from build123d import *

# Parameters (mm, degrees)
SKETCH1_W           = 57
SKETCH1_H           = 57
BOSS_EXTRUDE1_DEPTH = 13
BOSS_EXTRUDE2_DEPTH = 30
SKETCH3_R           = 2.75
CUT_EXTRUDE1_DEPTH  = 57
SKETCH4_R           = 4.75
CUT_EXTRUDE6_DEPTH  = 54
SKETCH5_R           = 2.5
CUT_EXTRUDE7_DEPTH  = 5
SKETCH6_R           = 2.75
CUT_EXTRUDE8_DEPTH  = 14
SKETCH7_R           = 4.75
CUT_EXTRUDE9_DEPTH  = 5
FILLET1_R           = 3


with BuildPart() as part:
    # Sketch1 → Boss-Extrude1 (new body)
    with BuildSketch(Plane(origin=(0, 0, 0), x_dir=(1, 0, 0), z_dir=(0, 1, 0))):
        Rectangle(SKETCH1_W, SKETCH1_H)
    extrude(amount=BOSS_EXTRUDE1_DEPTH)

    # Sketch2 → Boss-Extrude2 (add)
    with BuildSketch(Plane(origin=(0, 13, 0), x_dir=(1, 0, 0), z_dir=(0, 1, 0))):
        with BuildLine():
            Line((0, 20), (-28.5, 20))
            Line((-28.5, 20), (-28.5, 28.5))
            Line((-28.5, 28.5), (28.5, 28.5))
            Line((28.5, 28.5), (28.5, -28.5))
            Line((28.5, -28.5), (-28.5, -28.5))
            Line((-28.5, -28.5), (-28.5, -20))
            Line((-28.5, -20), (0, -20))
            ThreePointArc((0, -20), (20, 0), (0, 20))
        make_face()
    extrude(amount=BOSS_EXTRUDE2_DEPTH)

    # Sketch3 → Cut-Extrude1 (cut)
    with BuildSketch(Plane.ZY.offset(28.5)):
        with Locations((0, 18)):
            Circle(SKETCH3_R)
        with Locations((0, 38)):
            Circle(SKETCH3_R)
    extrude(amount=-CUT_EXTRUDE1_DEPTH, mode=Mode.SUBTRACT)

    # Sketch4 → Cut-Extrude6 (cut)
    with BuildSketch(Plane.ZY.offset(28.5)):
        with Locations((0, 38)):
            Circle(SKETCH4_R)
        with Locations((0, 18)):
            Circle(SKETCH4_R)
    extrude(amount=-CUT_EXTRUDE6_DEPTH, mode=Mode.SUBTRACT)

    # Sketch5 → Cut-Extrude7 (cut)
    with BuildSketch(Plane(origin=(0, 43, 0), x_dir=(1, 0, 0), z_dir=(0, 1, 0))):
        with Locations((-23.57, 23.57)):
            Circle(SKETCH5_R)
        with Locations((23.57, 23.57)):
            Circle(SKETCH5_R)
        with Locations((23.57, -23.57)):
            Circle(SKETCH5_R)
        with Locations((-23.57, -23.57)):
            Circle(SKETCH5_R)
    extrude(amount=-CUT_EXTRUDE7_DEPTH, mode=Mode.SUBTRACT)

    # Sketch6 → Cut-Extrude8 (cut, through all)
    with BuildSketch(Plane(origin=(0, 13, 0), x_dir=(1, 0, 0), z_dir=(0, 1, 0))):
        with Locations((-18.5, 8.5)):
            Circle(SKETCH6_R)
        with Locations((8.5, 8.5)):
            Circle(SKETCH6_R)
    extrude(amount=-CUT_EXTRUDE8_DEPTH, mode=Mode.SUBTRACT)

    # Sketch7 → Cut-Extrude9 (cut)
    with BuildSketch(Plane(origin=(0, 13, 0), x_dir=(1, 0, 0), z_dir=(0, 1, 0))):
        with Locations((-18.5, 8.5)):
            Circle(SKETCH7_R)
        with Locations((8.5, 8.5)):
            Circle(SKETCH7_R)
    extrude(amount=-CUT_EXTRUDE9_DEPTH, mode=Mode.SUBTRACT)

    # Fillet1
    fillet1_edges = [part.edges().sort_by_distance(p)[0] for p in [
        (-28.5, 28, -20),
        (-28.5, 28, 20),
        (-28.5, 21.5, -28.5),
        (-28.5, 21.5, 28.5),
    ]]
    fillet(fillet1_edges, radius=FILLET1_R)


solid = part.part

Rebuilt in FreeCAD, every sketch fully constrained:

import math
import FreeCAD as App
import Part
import Sketcher
from FreeCAD import Vector


def edges_at(feature, points):
    """Names of the edges that pass closest to the given points."""
    edges = feature.Shape.Edges
    near = lambda p: min(range(len(edges)), key=lambda i: edges[i].distToShape(Part.Vertex(*p))[0])
    return sorted({f"Edge{near(p) + 1}" for p in points})


def add_polygon(sketch, points):
    """Adds a closed chain of lines whose ends are joined by coincident constraints."""
    first, n = sketch.GeometryCount, len(points)
    for a, b in zip(points, points[1:] + points[:1]):
        sketch.addGeometry(Part.LineSegment(App.Vector(*a, 0), App.Vector(*b, 0)), False)
    for i in range(n):
        sketch.addConstraint(Sketcher.Constraint("Coincident", first + i, 2, first + (i + 1) % n, 1))

doc = App.newDocument("Part")
body = doc.addObject("PartDesign::Body", "Body")

# Sketch on XZ plane
sketch1 = body.newObject("Sketcher::SketchObject", "Sketch")
sketch1.AttachmentSupport = (doc.getObject("XZ_Plane"), [""])
sketch1.MapMode = "FlatFace"
add_polygon(sketch1, [(-28, -28), (-28, 28), (28, 28), (28, -28)])  # lines 0-3
sketch1.addConstraint([
    Sketcher.Constraint("Vertical", 0),
    Sketcher.Constraint("Horizontal", 1),
    Sketcher.Constraint("Vertical", 2),
    Sketcher.Constraint("Horizontal", 3),
    Sketcher.Constraint("Symmetric", 0, 2, 2, 2, -1, 1),
    Sketcher.Constraint("Equal", 3, 0),
    Sketcher.Constraint("DistanceX", 1, 1, 1, 2, 57.0),
])
pad1 = body.newObject("PartDesign::Pad", "Pad")
pad1.Profile = sketch1
pad1.Length = 13
pad1.Reversed = True

# Sketch on XZ plane
sketch2 = body.newObject("Sketcher::SketchObject", "Sketch001")
sketch2.AttachmentSupport = (doc.getObject("XZ_Plane"), [""])
sketch2.MapMode = "FlatFace"
sketch2.AttachmentOffset = App.Placement(Vector(0, 0, -13), App.Rotation())
sketch2.addGeometry([
    Part.LineSegment(Vector(-28, -20, 0), Vector(0, -20, 0)),  # 0
    Part.ArcOfCircle(Part.Circle(Vector(0, 0, 0), Vector(0, 0, 1), 20), math.radians(-90), math.radians(90)),  # 1
    Part.LineSegment(Vector(0, 20, 0), Vector(-28, 20, 0)),  # 2
    Part.LineSegment(Vector(-28, 20, 0), Vector(-28, 28, 0)),  # 3
    Part.LineSegment(Vector(-28, 28, 0), Vector(28, 28, 0)),  # 4
    Part.LineSegment(Vector(28, 28, 0), Vector(28, -28, 0)),  # 5
    Part.LineSegment(Vector(28, -28, 0), Vector(-28, -28, 0)),  # 6
    Part.LineSegment(Vector(-28, -28, 0), Vector(-28, -20, 0)),  # 7
], False)
sketch2.addConstraint([
    Sketcher.Constraint("Tangent", 0, 2, 1, 1),
    Sketcher.Constraint("Tangent", 1, 2, 2, 1),
    Sketcher.Constraint("Coincident", 2, 2, 3, 1),
    Sketcher.Constraint("Coincident", 3, 2, 4, 1),
    Sketcher.Constraint("Coincident", 4, 2, 5, 1),
    Sketcher.Constraint("Coincident", 5, 2, 6, 1),
    Sketcher.Constraint("Coincident", 6, 2, 7, 1),
    Sketcher.Constraint("Coincident", 7, 2, 0, 1),
    Sketcher.Constraint("Horizontal", 0),
    Sketcher.Constraint("Horizontal", 2),
    Sketcher.Constraint("Vertical", 3),
    Sketcher.Constraint("Horizontal", 4),
    Sketcher.Constraint("Vertical", 5),
    Sketcher.Constraint("Horizontal", 6),
    Sketcher.Constraint("Vertical", 7),
    Sketcher.Constraint("Coincident", 1, 3, -1, 1),
    Sketcher.Constraint("Symmetric", 3, 2, 5, 2, -1, 1),
    Sketcher.Constraint("Vertical", 3, 2, 6, 2),
    Sketcher.Constraint("Equal", 6, 5),
    Sketcher.Constraint("Radius", 1, 20.0),
    Sketcher.Constraint("DistanceX", 4, 1, 4, 2, 57.0),
])
pad2 = body.newObject("PartDesign::Pad", "Pad001")
pad2.Profile = sketch2
pad2.Length = 30
pad2.Reversed = True

# Sketch on YZ plane
sketch3 = body.newObject("Sketcher::SketchObject", "Sketch002")
sketch3.AttachmentSupport = (doc.getObject("YZ_Plane"), [""])
sketch3.MapMode = "FlatFace"
sketch3.AttachmentOffset = App.Placement(Vector(0, 0, -28.5), App.Rotation())
sketch3.addGeometry([
    Part.Circle(Vector(18, 0, 0), Vector(0, 0, 1), 2.8),
    Part.Circle(Vector(38, 0, 0), Vector(0, 0, 1), 2.8),
], False)
sketch3.addConstraint([
    Sketcher.Constraint("Equal", 0, 1),
    Sketcher.Constraint("PointOnObject", 0, 3, -1),
    Sketcher.Constraint("PointOnObject", 1, 3, -1),
    Sketcher.Constraint("Diameter", 0, 5.5),
    Sketcher.Constraint("DistanceX", -1, 1, 0, 3, 18.0),
    Sketcher.Constraint("DistanceX", -1, 1, 1, 3, 38.0),
])
pocket1 = body.newObject("PartDesign::Pocket", "Pocket")
pocket1.Profile = sketch3
pocket1.Length = 57
pocket1.Reversed = True

# Sketch on YZ plane
sketch4 = body.newObject("Sketcher::SketchObject", "Sketch003")
sketch4.AttachmentSupport = (doc.getObject("YZ_Plane"), [""])
sketch4.MapMode = "FlatFace"
sketch4.AttachmentOffset = App.Placement(Vector(0, 0, -28.5), App.Rotation())
sketch4.addGeometry([
    Part.Circle(Vector(38, 0, 0), Vector(0, 0, 1), 4.8),
    Part.Circle(Vector(18, 0, 0), Vector(0, 0, 1), 4.8),
], False)
sketch4.addConstraint([
    Sketcher.Constraint("Equal", 0, 1),
    Sketcher.Constraint("PointOnObject", 0, 3, -1),
    Sketcher.Constraint("PointOnObject", 1, 3, -1),
    Sketcher.Constraint("Diameter", 0, 9.5),
    Sketcher.Constraint("DistanceX", -1, 1, 0, 3, 38.0),
    Sketcher.Constraint("DistanceX", -1, 1, 1, 3, 18.0),
])
pocket2 = body.newObject("PartDesign::Pocket", "Pocket001")
pocket2.Profile = sketch4
pocket2.Length = 54
pocket2.Reversed = True

# Sketch on XZ plane
sketch5 = body.newObject("Sketcher::SketchObject", "Sketch004")
sketch5.AttachmentSupport = (doc.getObject("XZ_Plane"), [""])
sketch5.MapMode = "FlatFace"
sketch5.AttachmentOffset = App.Placement(Vector(0, 0, -43), App.Rotation())
sketch5.addGeometry([
    Part.Circle(Vector(-23.6, -23.6, 0), Vector(0, 0, 1), 2.5),
    Part.Circle(Vector(23.6, -23.6, 0), Vector(0, 0, 1), 2.5),
    Part.Circle(Vector(23.6, 23.6, 0), Vector(0, 0, 1), 2.5),
    Part.Circle(Vector(-23.6, 23.6, 0), Vector(0, 0, 1), 2.5),
], False)
sketch5.addConstraint([
    Sketcher.Constraint("Equal", 0, 1),
    Sketcher.Constraint("Equal", 1, 2),
    Sketcher.Constraint("Equal", 2, 3),
    Sketcher.Constraint("Symmetric", 0, 3, 2, 3, -1, 1),
    Sketcher.Constraint("Symmetric", 1, 3, 3, 3, -1, 1),
    Sketcher.Constraint("Symmetric", 0, 3, 1, 3, -2),
    Sketcher.Constraint("Diameter", 0, 5.0),
    Sketcher.Constraint("DistanceX", 0, 3, -1, 1, 23.57),
    Sketcher.Constraint("DistanceY", 0, 3, -1, 1, 23.57),
])
pocket3 = body.newObject("PartDesign::Pocket", "Pocket002")
pocket3.Profile = sketch5
pocket3.Length = 5
pocket3.Reversed = True

# Sketch on XZ plane
sketch6 = body.newObject("Sketcher::SketchObject", "Sketch005")
sketch6.AttachmentSupport = (doc.getObject("XZ_Plane"), [""])
sketch6.MapMode = "FlatFace"
sketch6.AttachmentOffset = App.Placement(Vector(0, 0, -13), App.Rotation())
sketch6.addGeometry([
    Part.Circle(Vector(-18.5, -8.5, 0), Vector(0, 0, 1), 2.8),
    Part.Circle(Vector(8.5, -8.5, 0), Vector(0, 0, 1), 2.8),
], False)
sketch6.addConstraint([
    Sketcher.Constraint("Equal", 0, 1),
    Sketcher.Constraint("Horizontal", 0, 3, 1, 3),
    Sketcher.Constraint("Diameter", 0, 5.5),
    Sketcher.Constraint("DistanceX", 0, 3, 1, 3, 27.0),
    Sketcher.Constraint("DistanceX", 0, 3, -1, 1, 18.5),
    Sketcher.Constraint("DistanceY", 0, 3, -1, 1, 8.5),
])
pocket4 = body.newObject("PartDesign::Pocket", "Pocket003")
pocket4.Profile = sketch6
pocket4.Type = "ThroughAll"
pocket4.Reversed = True

# Sketch on XZ plane
sketch7 = body.newObject("Sketcher::SketchObject", "Sketch006")
sketch7.AttachmentSupport = (doc.getObject("XZ_Plane"), [""])
sketch7.MapMode = "FlatFace"
sketch7.AttachmentOffset = App.Placement(Vector(0, 0, -13), App.Rotation())
sketch7.addGeometry([
    Part.Circle(Vector(-18.5, -8.5, 0), Vector(0, 0, 1), 4.8),
    Part.Circle(Vector(8.5, -8.5, 0), Vector(0, 0, 1), 4.8),
], False)
sketch7.addConstraint([
    Sketcher.Constraint("Equal", 0, 1),
    Sketcher.Constraint("Horizontal", 0, 3, 1, 3),
    Sketcher.Constraint("Diameter", 0, 9.5),
    Sketcher.Constraint("DistanceX", 0, 3, 1, 3, 27.0),
    Sketcher.Constraint("DistanceX", 0, 3, -1, 1, 18.5),
    Sketcher.Constraint("DistanceY", 0, 3, -1, 1, 8.5),
])
pocket5 = body.newObject("PartDesign::Pocket", "Pocket004")
pocket5.Profile = sketch7
pocket5.Length = 5
pocket5.Reversed = True
doc.recompute()

fillet = body.newObject("PartDesign::Fillet", "Fillet")
fillet.Base = (pocket5, edges_at(pocket5, [
    (-28.5, 28, -20),
    (-28.5, 28, 20),
    (-28.5, 21.5, -28.5),
    (-28.5, 21.5, 28.5),
]))
fillet.Radius = 3

doc.recompute()
